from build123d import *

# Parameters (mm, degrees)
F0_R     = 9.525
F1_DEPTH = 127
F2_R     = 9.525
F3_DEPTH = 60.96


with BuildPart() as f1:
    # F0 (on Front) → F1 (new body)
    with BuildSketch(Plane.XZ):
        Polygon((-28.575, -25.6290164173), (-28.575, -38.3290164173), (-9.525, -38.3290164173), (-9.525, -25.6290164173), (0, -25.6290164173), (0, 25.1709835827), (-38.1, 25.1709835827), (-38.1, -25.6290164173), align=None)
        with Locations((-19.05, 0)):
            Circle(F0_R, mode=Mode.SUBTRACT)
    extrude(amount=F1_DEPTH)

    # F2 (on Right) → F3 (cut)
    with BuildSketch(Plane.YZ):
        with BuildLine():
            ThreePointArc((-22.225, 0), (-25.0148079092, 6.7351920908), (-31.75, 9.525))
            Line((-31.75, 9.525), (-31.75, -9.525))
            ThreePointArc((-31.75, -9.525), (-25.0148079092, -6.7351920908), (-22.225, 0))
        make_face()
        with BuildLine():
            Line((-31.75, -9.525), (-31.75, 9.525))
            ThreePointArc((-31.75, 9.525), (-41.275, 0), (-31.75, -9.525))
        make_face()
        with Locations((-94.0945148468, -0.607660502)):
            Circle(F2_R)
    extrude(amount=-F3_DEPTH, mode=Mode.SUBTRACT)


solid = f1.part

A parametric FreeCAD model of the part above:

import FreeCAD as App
import Part
import Sketcher

V = App.Vector
Q = App.Units.Quantity

doc = App.newDocument("Part")
params = doc.addObject("Spreadsheet::Sheet", "Params")
for row, (alias, value) in enumerate([
    ("sketch1_diameter", "0.75 in"),
    ("sketch1_height", "2 in"),
    ("sketch1_width", "1.5 in"),
    ("sketch1_height2", "0.5 in"),
    ("sketch1_width2", "0.75 in"),
    ("pad1_length", "5 in"),
    ("sketch2_diameter", "0.75 in"),
    ("pocket1_length", "2.4 in"),
], start=1):
    params.set(f"A{row}", alias)
    params.set(f"B{row}", "=" + value)
    params.setAlias(f"B{row}", alias)

body = doc.addObject("PartDesign::Body", "Body")

sketch1 = body.newObject("Sketcher::SketchObject", "Sketch")
sketch1.AttachmentSupport = (doc.getObject("XZ_Plane"), [""])
sketch1.MapMode = "FlatFace"
sketch1.addGeometry(Part.LineSegment(V(-29, -26, 0), V(-29, -38, 0)), False)
sketch1.addGeometry(Part.LineSegment(V(-29, -38, 0), V(-10, -38, 0)), False)
sketch1.addGeometry(Part.LineSegment(V(-10, -38, 0), V(-10, -26, 0)), False)
sketch1.addGeometry(Part.LineSegment(V(-10, -26, 0), V(0, -26, 0)), False)
sketch1.addGeometry(Part.LineSegment(V(0, -26, 0), V(0, 25, 0)), False)
sketch1.addGeometry(Part.LineSegment(V(0, 25, 0), V(-38, 25, 0)), False)
sketch1.addGeometry(Part.LineSegment(V(-38, 25, 0), V(-38, -26, 0)), False)
sketch1.addGeometry(Part.LineSegment(V(-38, -26, 0), V(-29, -26, 0)), False)
sketch1.addGeometry(Part.Circle(V(-19, 0, 0), V(0, 0, 1), 10), False)
sketch1.addConstraint(Sketcher.Constraint("Coincident", 0, 2, 1, 1))
sketch1.addConstraint(Sketcher.Constraint("Coincident", 1, 2, 2, 1))
sketch1.addConstraint(Sketcher.Constraint("Coincident", 2, 2, 3, 1))
sketch1.addConstraint(Sketcher.Constraint("Coincident", 3, 2, 4, 1))
sketch1.addConstraint(Sketcher.Constraint("Coincident", 4, 2, 5, 1))
sketch1.addConstraint(Sketcher.Constraint("Coincident", 5, 2, 6, 1))
sketch1.addConstraint(Sketcher.Constraint("Coincident", 6, 2, 7, 1))
sketch1.addConstraint(Sketcher.Constraint("Coincident", 7, 2, 0, 1))
sketch1.addConstraint(Sketcher.Constraint("Vertical", 0))
sketch1.addConstraint(Sketcher.Constraint("Horizontal", 1))
sketch1.addConstraint(Sketcher.Constraint("Vertical", 2))
sketch1.addConstraint(Sketcher.Constraint("Horizontal", 3))
sketch1.addConstraint(Sketcher.Constraint("Vertical", 4))
sketch1.addConstraint(Sketcher.Constraint("Horizontal", 5))
sketch1.addConstraint(Sketcher.Constraint("Vertical", 6))
sketch1.addConstraint(Sketcher.Constraint("Horizontal", 7))
sketch1.addConstraint(Sketcher.Constraint("PointOnObject", 8, 3, -1))
sketch1.addConstraint(Sketcher.Constraint("PointOnObject", 3, 2, -2))
sketch1.addConstraint(Sketcher.Constraint("Horizontal", 3, 2, 6, 2))
sketch1.addConstraint(Sketcher.Constraint("Equal", 3, 7))
sketch1.addConstraint(Sketcher.Constraint("Diameter", 8, Q("0.75 in")))
sketch1.addConstraint(Sketcher.Constraint("DistanceY", 4, 1, 4, 2, Q("2 in")))
sketch1.addConstraint(Sketcher.Constraint("DistanceX", 5, 2, 5, 1, Q("1.5 in")))
sketch1.addConstraint(Sketcher.Constraint("DistanceY", 0, 2, 0, 1, Q("0.5 in")))
sketch1.addConstraint(Sketcher.Constraint("DistanceX", 1, 1, 1, 2, Q("0.75 in")))
sketch1.addConstraint(Sketcher.Constraint("DistanceX", 8, 3, -1, 1, Q("0.75 in")))
sketch1.addConstraint(Sketcher.Constraint("DistanceY", 0, 2, -1, 1, 38.329016))
sketch1.setExpression("Constraints[20]", "Params.sketch1_diameter")
sketch1.setExpression("Constraints[21]", "Params.sketch1_height")
sketch1.setExpression("Constraints[22]", "Params.sketch1_width")
sketch1.setExpression("Constraints[23]", "Params.sketch1_height2")
sketch1.setExpression("Constraints[24]", "Params.sketch1_width2")
pad1 = body.newObject("PartDesign::Pad", "Pad")
pad1.Profile = sketch1
pad1.setExpression("Length", "Params.pad1_length")

sketch2 = body.newObject("Sketcher::SketchObject", "Sketch001")
sketch2.AttachmentSupport = (doc.getObject("YZ_Plane"), [""])
sketch2.MapMode = "FlatFace"
sketch2.addGeometry(Part.Circle(V(-32, 0, 0), V(0, 0, 1), 10), False)
sketch2.addGeometry(Part.Circle(V(-94, -1, 0), V(0, 0, 1), 10), False)
sketch2.addConstraint(Sketcher.Constraint("Equal", 0, 1))
sketch2.addConstraint(Sketcher.Constraint("PointOnObject", 0, 3, -1))
sketch2.addConstraint(Sketcher.Constraint("Diameter", 0, Q("0.75 in")))
sketch2.addConstraint(Sketcher.Constraint("DistanceX", 0, 3, -1, 1, Q("1.25 in")))
sketch2.addConstraint(Sketcher.Constraint("DistanceY", 1, 3, -1, 1, 0.607661))
sketch2.addConstraint(Sketcher.Constraint("DistanceX", 1, 3, -1, 1, 94.094515))
sketch2.setExpression("Constraints[2]", "Params.sketch2_diameter")
pocket1 = body.newObject("PartDesign::Pocket", "Pocket")
pocket1.Profile = sketch2
pocket1.setExpression("Length", "Params.pocket1_length")

doc.recompute()
